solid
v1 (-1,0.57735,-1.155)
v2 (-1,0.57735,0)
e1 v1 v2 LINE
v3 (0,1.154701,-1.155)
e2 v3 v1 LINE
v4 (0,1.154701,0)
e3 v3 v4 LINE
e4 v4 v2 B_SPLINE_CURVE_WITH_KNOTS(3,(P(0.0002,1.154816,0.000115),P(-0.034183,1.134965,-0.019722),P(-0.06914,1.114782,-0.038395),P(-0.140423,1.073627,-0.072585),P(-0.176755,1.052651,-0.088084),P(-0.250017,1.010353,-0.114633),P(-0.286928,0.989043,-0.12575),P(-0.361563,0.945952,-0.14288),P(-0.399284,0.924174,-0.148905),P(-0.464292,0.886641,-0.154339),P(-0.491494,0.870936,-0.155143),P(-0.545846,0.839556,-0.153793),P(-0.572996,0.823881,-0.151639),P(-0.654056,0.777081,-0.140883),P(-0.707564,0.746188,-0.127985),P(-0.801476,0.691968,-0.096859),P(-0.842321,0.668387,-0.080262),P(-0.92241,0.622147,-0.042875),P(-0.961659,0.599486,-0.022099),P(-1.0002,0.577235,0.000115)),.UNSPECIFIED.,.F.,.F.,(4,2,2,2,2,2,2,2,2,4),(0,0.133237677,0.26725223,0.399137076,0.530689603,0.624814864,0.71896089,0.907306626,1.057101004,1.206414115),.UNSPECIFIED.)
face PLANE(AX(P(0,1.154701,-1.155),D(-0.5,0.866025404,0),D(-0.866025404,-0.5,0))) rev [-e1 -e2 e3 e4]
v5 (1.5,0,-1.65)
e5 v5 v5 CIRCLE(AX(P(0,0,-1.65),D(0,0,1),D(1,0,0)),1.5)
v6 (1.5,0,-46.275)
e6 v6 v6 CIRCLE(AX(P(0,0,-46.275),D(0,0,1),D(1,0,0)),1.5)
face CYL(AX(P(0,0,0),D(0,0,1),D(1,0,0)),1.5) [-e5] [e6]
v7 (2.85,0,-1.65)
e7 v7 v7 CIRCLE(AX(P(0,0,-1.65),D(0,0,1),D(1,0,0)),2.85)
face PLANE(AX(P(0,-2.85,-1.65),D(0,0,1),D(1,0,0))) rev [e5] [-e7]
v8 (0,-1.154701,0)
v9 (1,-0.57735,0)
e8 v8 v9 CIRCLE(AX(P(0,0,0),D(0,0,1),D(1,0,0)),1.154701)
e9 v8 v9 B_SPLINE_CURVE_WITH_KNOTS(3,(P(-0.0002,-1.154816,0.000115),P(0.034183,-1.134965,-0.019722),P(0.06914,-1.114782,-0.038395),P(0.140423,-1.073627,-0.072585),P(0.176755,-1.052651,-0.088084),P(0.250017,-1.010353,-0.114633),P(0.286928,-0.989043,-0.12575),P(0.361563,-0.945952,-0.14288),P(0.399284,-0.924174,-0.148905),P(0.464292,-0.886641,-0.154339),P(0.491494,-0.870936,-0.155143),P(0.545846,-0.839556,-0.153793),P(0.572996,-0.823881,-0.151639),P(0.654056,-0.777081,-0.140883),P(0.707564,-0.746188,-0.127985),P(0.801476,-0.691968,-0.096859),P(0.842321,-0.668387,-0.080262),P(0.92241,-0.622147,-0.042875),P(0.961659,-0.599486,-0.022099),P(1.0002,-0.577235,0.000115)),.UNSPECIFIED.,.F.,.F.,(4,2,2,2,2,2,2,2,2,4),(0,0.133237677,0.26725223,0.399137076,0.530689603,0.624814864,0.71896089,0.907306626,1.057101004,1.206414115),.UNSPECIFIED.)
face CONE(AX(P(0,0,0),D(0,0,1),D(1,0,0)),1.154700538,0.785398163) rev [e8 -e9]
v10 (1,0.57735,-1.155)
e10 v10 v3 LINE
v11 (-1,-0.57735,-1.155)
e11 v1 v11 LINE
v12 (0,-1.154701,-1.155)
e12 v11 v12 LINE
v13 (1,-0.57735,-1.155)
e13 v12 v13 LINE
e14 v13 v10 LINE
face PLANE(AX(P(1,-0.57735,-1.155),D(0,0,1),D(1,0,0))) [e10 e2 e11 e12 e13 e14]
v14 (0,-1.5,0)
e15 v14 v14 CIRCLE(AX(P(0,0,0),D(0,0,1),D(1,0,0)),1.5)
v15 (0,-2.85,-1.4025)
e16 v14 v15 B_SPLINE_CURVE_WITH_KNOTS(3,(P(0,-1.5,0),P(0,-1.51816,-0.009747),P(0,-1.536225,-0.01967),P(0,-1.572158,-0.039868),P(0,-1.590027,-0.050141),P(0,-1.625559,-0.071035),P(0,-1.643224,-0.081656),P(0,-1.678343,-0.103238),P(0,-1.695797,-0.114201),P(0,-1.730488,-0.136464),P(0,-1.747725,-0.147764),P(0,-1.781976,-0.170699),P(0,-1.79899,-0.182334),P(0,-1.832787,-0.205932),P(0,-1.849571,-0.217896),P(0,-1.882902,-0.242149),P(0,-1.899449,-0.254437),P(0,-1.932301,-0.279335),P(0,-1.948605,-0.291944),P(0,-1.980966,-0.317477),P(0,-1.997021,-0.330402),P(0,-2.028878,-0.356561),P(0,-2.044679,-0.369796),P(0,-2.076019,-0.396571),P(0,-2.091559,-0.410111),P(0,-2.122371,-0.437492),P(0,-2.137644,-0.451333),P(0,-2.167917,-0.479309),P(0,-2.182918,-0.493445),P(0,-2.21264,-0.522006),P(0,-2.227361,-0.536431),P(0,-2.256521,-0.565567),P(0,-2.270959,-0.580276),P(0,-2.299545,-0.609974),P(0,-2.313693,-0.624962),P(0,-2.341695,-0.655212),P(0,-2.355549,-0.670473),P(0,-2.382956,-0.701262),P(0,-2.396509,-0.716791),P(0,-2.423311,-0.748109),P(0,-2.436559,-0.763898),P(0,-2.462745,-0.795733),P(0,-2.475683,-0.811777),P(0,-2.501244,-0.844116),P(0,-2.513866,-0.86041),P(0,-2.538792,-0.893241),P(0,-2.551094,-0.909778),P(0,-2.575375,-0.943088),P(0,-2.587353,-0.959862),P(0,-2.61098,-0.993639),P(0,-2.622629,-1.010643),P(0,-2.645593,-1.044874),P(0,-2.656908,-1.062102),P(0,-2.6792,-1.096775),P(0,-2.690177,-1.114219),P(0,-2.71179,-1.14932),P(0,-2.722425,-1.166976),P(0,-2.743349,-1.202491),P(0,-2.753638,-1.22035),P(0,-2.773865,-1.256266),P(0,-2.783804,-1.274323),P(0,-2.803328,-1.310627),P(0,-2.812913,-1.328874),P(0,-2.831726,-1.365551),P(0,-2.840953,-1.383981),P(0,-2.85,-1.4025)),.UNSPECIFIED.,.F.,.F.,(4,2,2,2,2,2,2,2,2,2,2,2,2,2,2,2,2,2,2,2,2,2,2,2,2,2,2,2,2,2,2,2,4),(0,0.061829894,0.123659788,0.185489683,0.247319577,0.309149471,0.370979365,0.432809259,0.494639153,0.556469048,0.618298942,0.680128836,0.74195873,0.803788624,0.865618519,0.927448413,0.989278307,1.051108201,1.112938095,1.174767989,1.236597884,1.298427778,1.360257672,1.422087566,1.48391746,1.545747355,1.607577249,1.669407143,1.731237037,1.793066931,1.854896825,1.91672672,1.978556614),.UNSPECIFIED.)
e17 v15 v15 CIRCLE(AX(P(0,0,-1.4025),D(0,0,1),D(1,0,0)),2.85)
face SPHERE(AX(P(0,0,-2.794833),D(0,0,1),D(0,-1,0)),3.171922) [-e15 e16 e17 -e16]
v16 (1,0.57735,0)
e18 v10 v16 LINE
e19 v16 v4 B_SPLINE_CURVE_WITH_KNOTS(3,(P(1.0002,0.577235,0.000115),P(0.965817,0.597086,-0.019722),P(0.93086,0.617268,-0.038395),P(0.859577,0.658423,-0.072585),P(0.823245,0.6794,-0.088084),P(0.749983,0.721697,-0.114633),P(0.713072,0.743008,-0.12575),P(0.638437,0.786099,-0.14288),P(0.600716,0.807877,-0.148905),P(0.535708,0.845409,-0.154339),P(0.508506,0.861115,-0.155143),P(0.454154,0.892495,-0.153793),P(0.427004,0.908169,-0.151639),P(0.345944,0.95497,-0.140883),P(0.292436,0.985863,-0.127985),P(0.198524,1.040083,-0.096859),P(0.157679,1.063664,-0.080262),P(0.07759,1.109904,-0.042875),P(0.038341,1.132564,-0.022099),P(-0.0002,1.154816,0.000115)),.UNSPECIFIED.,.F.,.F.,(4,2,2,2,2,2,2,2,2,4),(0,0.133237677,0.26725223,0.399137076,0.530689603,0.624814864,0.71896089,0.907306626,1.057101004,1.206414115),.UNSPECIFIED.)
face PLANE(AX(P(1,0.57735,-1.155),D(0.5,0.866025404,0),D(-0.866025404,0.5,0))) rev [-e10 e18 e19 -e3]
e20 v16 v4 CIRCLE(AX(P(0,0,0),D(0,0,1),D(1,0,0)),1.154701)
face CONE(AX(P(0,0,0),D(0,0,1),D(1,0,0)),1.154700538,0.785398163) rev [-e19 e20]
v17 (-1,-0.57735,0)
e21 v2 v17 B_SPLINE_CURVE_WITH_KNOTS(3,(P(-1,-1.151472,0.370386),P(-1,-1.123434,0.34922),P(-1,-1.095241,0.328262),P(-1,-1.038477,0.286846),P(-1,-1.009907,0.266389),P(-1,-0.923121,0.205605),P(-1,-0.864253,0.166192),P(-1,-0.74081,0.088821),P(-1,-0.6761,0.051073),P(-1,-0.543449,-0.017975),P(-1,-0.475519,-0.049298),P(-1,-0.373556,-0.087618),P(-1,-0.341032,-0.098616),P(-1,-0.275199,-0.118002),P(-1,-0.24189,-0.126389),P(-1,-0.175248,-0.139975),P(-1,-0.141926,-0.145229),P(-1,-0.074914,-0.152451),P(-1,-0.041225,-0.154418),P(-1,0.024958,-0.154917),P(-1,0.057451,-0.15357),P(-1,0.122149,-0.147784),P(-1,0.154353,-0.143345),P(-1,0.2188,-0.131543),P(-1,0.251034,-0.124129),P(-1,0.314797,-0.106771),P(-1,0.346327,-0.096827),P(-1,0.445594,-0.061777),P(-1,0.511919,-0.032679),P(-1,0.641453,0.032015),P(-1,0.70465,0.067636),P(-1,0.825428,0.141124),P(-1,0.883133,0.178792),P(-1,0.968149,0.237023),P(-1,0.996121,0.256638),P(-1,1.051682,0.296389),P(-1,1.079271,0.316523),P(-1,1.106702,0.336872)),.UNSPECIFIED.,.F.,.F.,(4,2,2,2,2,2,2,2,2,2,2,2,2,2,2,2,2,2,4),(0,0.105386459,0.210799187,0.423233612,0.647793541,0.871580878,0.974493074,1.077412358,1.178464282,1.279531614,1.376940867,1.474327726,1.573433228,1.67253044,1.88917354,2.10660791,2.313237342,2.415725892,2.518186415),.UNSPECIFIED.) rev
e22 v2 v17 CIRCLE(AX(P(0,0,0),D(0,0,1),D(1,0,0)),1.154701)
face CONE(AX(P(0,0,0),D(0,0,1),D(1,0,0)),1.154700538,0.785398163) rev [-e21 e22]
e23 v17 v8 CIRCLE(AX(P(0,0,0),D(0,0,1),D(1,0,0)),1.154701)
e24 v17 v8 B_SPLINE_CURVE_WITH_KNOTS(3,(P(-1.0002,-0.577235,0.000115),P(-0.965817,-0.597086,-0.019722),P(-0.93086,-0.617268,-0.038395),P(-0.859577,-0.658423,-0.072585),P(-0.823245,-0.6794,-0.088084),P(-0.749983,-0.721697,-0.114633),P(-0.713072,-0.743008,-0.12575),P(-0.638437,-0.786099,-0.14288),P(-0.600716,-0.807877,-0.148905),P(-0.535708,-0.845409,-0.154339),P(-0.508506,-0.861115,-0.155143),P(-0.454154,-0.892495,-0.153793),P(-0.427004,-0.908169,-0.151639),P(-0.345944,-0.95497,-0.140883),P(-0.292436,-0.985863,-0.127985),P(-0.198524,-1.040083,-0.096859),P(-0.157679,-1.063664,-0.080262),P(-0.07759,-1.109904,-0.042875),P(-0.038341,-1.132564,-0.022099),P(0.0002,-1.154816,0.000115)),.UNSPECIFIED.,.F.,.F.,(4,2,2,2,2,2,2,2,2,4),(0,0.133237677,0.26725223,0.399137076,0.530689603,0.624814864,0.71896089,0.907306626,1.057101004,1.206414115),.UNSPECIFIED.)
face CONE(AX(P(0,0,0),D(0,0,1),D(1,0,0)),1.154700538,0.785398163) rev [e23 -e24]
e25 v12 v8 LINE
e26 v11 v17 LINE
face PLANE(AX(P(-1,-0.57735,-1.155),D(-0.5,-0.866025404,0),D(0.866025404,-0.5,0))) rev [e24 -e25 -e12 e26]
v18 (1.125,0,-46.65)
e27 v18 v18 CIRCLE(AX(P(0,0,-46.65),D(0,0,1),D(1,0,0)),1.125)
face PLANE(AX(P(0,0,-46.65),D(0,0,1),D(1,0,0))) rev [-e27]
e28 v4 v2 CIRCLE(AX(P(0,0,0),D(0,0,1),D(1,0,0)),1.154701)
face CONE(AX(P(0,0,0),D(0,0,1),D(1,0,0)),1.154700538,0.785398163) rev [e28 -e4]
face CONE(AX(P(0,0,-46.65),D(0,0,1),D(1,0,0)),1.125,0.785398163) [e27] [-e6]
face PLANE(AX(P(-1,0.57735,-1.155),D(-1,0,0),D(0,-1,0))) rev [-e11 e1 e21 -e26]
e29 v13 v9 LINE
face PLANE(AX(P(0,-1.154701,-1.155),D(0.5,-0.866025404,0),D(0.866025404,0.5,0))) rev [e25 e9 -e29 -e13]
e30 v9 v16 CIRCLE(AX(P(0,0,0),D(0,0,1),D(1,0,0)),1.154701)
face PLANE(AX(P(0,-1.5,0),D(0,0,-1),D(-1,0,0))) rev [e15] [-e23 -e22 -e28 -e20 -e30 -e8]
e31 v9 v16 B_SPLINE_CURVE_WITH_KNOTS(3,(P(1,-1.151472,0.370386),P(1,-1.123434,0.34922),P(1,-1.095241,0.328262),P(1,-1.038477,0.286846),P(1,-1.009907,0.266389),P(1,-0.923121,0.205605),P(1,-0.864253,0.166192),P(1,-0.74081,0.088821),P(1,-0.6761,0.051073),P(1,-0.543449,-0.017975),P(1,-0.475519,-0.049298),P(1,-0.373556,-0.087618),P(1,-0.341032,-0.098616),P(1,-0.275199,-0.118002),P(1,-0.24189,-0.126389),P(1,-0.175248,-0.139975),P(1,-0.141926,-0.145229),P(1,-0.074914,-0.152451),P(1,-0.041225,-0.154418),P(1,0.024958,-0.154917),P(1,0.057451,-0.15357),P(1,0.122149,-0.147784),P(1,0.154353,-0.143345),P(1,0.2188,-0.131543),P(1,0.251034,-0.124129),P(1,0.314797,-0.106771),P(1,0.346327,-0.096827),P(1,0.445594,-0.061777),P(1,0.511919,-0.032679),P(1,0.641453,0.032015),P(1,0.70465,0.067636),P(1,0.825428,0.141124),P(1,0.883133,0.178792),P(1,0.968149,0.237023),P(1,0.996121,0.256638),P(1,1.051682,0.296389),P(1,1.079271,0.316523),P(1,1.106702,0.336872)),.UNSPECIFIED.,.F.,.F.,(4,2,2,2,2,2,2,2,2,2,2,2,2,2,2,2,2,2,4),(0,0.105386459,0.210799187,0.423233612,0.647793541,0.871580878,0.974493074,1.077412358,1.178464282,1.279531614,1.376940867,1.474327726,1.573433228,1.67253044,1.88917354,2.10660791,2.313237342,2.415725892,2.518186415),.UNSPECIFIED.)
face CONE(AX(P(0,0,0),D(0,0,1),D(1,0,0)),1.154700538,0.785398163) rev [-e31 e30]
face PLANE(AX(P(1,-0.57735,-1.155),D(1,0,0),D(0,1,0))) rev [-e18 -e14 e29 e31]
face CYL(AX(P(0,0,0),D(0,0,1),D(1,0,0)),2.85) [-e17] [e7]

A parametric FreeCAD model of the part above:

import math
import FreeCAD as App
import Part
import Sketcher

V = App.Vector
Q = App.Units.Quantity


def add_polygon(sketch, points):
    """Adds a closed chain of lines whose ends are joined by coincident constraints."""
    first, n = sketch.GeometryCount, len(points)
    for a, b in zip(points, points[1:] + points[:1]):
        sketch.addGeometry(Part.LineSegment(App.Vector(*a, 0), App.Vector(*b, 0)), False)
    for i in range(n):
        sketch.addConstraint(Sketcher.Constraint("Coincident", first + i, 2, first + (i + 1) % n, 1))

doc = App.newDocument("Part")
body = doc.addObject("PartDesign::Body", "Body")

sketch1 = body.newObject("Sketcher::SketchObject", "Sketch")
sketch1.AttachmentSupport = (doc.getObject("YZ_Plane"), [""])
sketch1.MapMode = "FlatFace"
add_polygon(sketch1, [(1.1, -46.6), (1.5, -46.3), (1.5, -1.6), (0, -1.6), (0, -46.6)])
sketch1.addConstraint([
    Sketcher.Constraint("Vertical", 1),
    Sketcher.Constraint("Horizontal", 2),
    Sketcher.Constraint("Vertical", 3),
    Sketcher.Constraint("Horizontal", 4),
    Sketcher.Constraint("PointOnObject", 2, 2, -2),
    Sketcher.Constraint("DistanceY", 3, 2, 3, 1, 45.0),
    Sketcher.Constraint("Angle", 0, Q("45 deg")),
    Sketcher.Constraint("DistanceX", 2, 2, 2, 1, 1.5),
    Sketcher.Constraint("DistanceX", 4, 1, 4, 2, 1.125),
    Sketcher.Constraint("DistanceY", 1, 2, -1, 1, 1.65),
])
revolution = body.newObject("PartDesign::Revolution", "Revolution")
revolution.Profile = sketch1
revolution.ReferenceAxis = (sketch1, ["V_Axis"])
revolution.Angle = 360

sketch2 = body.newObject("Sketcher::SketchObject", "Sketch001")
sketch2.AttachmentSupport = (doc.getObject("YZ_Plane"), [""])
sketch2.MapMode = "FlatFace"
sketch2.addGeometry([
    Part.LineSegment(V(2.85, -1.65, 0), V(2.85, -1.4, 0)),
    Part.ArcOfCircle(Part.Circle(V(0, -2.79, 0), V(0, 0, 1), 3.17), math.radians(26), math.radians(62)),
    Part.LineSegment(V(1.5, 0, 0), V(0, 0, 0)),
    Part.LineSegment(V(0, 0, 0), V(0, -1.65, 0)),
    Part.LineSegment(V(0, -1.65, 0), V(2.85, -1.65, 0)),
], False)
sketch2.addConstraint([
    Sketcher.Constraint("Coincident", 0, 2, 1, 1),
    Sketcher.Constraint("Coincident", 1, 2, 2, 1),
    Sketcher.Constraint("Coincident", 2, 2, 3, 1),
    Sketcher.Constraint("Coincident", 3, 2, 4, 1),
    Sketcher.Constraint("Coincident", 4, 2, 0, 1),
    Sketcher.Constraint("Vertical", 0),
    Sketcher.Constraint("Horizontal", 2),
    Sketcher.Constraint("Vertical", 3),
    Sketcher.Constraint("Horizontal", 4),
    Sketcher.Constraint("Coincident", 2, 2, -1, 1),
    Sketcher.Constraint("PointOnObject", 1, 3, -2),
    Sketcher.Constraint("DistanceX", 2, 2, 2, 1, 1.5),
    Sketcher.Constraint("DistanceX", 4, 1, 4, 2, 2.85),
    Sketcher.Constraint("DistanceY", 3, 2, 3, 1, 1.65),
    Sketcher.Constraint("DistanceY", 0, 1, 0, 2, 0.2475),
])
revolution2 = body.newObject("PartDesign::Revolution", "Revolution001")
revolution2.Profile = sketch2
revolution2.ReferenceAxis = (sketch2, ["V_Axis"])
revolution2.Angle = 360

sketch3 = body.newObject("Sketcher::SketchObject", "Sketch002")
sketch3.AttachmentSupport = (doc.getObject("XY_Plane"), [""])
sketch3.MapMode = "FlatFace"
add_polygon(sketch3, [(1, -0.6), (1, 0.6), (0, 1.2), (-1, 0.6), (-1, -0.6), (0, -1.2)])
sketch3.addConstraint([
    Sketcher.Constraint("Vertical", 0),
    Sketcher.Constraint("Vertical", 3),
    Sketcher.Constraint("Symmetric", 0, 2, 3, 2, -1, 1),
    Sketcher.Constraint("Symmetric", 1, 2, 4, 2, -1, 1),
    Sketcher.Constraint("PointOnObject", 1, 2, -2),
    Sketcher.Constraint("Parallel", 2, 5),
    Sketcher.Constraint("Horizontal", 0, 2, 2, 2),
    Sketcher.Constraint("Angle", 1, Q("150 deg")),
    Sketcher.Constraint("DistanceX", -1, 1, 0, 2, 1.0),
    Sketcher.Constraint("DistanceY", 0, 1, 0, 2, 1.154701),
])
pocket1 = body.newObject("PartDesign::Pocket", "Pocket")
pocket1.Profile = sketch3
pocket1.Length = 1.155

sketch4 = body.newObject("Sketcher::SketchObject", "Sketch003")
sketch4.AttachmentSupport = (doc.getObject("YZ_Plane"), [""])
sketch4.MapMode = "FlatFace"
add_polygon(sketch4, [(0, 0), (-1.2, 0), (0, -1.2)])
sketch4.addConstraint([
    Sketcher.Constraint("Horizontal", 0),
    Sketcher.Constraint("Vertical", 2),
    Sketcher.Constraint("Coincident", 2, 2, -1, 1),
    Sketcher.Constraint("Equal", 0, 2),
    Sketcher.Constraint("DistanceX", 0, 2, 0, 1, 1.154701),
])
groove = body.newObject("PartDesign::Groove", "Groove")
groove.Profile = sketch4
groove.ReferenceAxis = (sketch4, ["V_Axis"])
groove.Angle = 360

doc.recompute()
